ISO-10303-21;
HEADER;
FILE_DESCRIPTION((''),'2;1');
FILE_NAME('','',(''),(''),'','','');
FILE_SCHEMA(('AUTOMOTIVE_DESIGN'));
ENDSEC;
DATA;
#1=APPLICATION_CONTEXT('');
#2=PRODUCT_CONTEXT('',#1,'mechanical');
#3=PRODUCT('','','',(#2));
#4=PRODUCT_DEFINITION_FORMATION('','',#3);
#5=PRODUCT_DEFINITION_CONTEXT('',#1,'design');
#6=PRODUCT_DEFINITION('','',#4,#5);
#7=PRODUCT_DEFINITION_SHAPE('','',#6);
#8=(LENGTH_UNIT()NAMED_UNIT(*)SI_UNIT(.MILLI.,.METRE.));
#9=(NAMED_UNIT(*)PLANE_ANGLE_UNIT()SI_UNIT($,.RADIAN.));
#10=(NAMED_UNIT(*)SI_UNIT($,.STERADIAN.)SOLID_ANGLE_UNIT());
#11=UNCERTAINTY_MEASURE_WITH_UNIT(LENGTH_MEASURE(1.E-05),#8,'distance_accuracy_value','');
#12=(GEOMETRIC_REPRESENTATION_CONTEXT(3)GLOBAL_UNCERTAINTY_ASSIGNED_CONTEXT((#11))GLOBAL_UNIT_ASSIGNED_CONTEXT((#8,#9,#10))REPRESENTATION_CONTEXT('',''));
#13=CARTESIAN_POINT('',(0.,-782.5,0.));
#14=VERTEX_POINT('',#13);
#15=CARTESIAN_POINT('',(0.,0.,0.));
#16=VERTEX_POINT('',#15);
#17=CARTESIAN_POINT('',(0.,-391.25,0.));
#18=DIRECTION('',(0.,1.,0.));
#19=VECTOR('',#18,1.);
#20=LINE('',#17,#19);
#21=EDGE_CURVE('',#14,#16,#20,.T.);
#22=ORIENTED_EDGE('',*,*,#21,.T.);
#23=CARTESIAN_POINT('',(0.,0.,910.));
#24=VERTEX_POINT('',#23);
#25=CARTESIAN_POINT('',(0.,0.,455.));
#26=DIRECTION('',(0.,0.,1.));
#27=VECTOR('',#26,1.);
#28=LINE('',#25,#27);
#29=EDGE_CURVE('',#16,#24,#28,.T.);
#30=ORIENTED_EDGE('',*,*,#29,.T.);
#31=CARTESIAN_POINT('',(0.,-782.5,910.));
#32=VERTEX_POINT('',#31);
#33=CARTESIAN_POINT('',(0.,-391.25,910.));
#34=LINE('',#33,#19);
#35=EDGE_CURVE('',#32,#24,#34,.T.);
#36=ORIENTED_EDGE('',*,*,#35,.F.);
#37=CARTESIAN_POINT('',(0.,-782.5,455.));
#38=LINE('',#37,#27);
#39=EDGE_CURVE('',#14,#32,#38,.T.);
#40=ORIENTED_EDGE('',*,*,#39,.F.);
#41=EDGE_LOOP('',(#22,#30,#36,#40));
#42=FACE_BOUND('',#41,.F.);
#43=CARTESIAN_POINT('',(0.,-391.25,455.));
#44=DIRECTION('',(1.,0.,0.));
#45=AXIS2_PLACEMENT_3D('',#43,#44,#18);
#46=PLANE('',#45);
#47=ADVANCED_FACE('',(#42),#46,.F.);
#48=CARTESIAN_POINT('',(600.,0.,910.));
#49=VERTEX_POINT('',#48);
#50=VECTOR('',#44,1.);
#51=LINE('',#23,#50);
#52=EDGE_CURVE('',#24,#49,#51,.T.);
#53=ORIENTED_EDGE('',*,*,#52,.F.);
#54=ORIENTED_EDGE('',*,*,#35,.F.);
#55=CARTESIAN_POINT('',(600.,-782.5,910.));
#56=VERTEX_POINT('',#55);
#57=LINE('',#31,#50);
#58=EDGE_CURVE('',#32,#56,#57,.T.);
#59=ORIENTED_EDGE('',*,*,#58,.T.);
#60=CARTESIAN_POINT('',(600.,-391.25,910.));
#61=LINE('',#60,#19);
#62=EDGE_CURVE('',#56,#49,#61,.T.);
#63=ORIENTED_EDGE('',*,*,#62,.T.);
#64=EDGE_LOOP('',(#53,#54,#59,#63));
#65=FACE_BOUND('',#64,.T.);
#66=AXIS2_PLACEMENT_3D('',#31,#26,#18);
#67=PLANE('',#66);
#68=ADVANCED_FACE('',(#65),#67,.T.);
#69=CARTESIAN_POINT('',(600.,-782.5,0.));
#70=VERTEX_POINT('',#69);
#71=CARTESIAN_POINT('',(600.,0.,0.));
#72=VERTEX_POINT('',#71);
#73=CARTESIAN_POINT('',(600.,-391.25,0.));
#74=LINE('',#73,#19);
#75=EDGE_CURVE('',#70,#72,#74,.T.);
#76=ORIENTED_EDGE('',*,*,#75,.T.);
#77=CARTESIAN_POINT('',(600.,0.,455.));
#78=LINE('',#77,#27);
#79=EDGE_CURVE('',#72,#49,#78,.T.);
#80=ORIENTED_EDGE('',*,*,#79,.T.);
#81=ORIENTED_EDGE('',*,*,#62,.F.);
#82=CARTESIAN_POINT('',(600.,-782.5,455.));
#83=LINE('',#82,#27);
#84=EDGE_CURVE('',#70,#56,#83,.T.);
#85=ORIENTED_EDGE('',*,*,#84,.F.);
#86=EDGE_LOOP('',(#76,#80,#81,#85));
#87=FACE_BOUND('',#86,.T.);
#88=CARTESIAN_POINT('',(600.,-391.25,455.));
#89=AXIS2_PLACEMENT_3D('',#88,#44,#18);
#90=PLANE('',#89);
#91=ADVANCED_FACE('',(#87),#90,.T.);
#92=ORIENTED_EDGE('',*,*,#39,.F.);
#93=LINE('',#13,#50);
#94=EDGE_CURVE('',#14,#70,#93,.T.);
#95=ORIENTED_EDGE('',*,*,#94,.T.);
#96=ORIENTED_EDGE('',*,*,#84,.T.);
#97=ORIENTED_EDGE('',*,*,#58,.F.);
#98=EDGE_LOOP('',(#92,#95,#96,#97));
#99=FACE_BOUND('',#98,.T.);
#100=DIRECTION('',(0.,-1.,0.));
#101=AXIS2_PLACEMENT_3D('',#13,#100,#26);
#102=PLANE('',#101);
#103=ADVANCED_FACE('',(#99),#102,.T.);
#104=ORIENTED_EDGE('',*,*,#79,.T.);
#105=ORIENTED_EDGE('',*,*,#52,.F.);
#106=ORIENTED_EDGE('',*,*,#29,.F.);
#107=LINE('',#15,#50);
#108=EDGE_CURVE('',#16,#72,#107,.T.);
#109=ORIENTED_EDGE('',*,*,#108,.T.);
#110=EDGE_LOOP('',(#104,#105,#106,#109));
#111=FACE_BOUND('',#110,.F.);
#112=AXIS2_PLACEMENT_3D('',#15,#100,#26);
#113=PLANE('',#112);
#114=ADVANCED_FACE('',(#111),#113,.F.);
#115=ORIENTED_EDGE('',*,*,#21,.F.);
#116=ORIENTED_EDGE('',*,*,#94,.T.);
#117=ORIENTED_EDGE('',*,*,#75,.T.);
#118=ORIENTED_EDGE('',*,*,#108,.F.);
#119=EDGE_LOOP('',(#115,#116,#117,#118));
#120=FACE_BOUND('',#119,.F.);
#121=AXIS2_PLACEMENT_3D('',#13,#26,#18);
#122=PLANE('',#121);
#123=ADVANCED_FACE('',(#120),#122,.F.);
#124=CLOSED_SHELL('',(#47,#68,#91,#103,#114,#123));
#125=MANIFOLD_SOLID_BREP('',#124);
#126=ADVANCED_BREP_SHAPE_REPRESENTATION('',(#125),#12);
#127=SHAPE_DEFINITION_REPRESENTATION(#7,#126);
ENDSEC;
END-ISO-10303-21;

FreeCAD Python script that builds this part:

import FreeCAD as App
import Part
import Sketcher
Q = App.Units.Quantity

doc = App.newDocument("Part")
body = doc.addObject("PartDesign::Body", "Body")

sketch1 = body.newObject("Sketcher::SketchObject", "Sketch")
sketch1.AttachmentSupport = (doc.getObject("YZ_Plane"), [""])
sketch1.MapMode = "FlatFace"
sketch1.addGeometry([
    Part.LineSegment(App.Vector(-782, 910, 0), App.Vector(-782, 0, 0)),
    Part.LineSegment(App.Vector(-782, 0, 0), App.Vector(0, 0, 0)),
    Part.LineSegment(App.Vector(0, 0, 0), App.Vector(0, 910, 0)),
    Part.LineSegment(App.Vector(0, 910, 0), App.Vector(-782, 910, 0)),
], False)
sketch1.addConstraint([
    Sketcher.Constraint("Coincident", 0, 2, 1, 1),
    Sketcher.Constraint("Coincident", 1, 2, 2, 1),
    Sketcher.Constraint("Coincident", 2, 2, 3, 1),
    Sketcher.Constraint("Coincident", 3, 2, 0, 1),
    Sketcher.Constraint("Vertical", 0),
    Sketcher.Constraint("Horizontal", 1),
    Sketcher.Constraint("Vertical", 2),
    Sketcher.Constraint("Horizontal", 3),
    Sketcher.Constraint("Coincident", 1, 2, -1, 1),
    Sketcher.Constraint("DistanceY", 0, 2, 0, 1, Q("910 mm")),
    Sketcher.Constraint("DistanceX", 1, 1, 1, 2, Q("782.5 mm")),
])
pad1 = body.newObject("PartDesign::Pad", "Pad")
pad1.Profile = sketch1
pad1.Length = 600

doc.recompute()
